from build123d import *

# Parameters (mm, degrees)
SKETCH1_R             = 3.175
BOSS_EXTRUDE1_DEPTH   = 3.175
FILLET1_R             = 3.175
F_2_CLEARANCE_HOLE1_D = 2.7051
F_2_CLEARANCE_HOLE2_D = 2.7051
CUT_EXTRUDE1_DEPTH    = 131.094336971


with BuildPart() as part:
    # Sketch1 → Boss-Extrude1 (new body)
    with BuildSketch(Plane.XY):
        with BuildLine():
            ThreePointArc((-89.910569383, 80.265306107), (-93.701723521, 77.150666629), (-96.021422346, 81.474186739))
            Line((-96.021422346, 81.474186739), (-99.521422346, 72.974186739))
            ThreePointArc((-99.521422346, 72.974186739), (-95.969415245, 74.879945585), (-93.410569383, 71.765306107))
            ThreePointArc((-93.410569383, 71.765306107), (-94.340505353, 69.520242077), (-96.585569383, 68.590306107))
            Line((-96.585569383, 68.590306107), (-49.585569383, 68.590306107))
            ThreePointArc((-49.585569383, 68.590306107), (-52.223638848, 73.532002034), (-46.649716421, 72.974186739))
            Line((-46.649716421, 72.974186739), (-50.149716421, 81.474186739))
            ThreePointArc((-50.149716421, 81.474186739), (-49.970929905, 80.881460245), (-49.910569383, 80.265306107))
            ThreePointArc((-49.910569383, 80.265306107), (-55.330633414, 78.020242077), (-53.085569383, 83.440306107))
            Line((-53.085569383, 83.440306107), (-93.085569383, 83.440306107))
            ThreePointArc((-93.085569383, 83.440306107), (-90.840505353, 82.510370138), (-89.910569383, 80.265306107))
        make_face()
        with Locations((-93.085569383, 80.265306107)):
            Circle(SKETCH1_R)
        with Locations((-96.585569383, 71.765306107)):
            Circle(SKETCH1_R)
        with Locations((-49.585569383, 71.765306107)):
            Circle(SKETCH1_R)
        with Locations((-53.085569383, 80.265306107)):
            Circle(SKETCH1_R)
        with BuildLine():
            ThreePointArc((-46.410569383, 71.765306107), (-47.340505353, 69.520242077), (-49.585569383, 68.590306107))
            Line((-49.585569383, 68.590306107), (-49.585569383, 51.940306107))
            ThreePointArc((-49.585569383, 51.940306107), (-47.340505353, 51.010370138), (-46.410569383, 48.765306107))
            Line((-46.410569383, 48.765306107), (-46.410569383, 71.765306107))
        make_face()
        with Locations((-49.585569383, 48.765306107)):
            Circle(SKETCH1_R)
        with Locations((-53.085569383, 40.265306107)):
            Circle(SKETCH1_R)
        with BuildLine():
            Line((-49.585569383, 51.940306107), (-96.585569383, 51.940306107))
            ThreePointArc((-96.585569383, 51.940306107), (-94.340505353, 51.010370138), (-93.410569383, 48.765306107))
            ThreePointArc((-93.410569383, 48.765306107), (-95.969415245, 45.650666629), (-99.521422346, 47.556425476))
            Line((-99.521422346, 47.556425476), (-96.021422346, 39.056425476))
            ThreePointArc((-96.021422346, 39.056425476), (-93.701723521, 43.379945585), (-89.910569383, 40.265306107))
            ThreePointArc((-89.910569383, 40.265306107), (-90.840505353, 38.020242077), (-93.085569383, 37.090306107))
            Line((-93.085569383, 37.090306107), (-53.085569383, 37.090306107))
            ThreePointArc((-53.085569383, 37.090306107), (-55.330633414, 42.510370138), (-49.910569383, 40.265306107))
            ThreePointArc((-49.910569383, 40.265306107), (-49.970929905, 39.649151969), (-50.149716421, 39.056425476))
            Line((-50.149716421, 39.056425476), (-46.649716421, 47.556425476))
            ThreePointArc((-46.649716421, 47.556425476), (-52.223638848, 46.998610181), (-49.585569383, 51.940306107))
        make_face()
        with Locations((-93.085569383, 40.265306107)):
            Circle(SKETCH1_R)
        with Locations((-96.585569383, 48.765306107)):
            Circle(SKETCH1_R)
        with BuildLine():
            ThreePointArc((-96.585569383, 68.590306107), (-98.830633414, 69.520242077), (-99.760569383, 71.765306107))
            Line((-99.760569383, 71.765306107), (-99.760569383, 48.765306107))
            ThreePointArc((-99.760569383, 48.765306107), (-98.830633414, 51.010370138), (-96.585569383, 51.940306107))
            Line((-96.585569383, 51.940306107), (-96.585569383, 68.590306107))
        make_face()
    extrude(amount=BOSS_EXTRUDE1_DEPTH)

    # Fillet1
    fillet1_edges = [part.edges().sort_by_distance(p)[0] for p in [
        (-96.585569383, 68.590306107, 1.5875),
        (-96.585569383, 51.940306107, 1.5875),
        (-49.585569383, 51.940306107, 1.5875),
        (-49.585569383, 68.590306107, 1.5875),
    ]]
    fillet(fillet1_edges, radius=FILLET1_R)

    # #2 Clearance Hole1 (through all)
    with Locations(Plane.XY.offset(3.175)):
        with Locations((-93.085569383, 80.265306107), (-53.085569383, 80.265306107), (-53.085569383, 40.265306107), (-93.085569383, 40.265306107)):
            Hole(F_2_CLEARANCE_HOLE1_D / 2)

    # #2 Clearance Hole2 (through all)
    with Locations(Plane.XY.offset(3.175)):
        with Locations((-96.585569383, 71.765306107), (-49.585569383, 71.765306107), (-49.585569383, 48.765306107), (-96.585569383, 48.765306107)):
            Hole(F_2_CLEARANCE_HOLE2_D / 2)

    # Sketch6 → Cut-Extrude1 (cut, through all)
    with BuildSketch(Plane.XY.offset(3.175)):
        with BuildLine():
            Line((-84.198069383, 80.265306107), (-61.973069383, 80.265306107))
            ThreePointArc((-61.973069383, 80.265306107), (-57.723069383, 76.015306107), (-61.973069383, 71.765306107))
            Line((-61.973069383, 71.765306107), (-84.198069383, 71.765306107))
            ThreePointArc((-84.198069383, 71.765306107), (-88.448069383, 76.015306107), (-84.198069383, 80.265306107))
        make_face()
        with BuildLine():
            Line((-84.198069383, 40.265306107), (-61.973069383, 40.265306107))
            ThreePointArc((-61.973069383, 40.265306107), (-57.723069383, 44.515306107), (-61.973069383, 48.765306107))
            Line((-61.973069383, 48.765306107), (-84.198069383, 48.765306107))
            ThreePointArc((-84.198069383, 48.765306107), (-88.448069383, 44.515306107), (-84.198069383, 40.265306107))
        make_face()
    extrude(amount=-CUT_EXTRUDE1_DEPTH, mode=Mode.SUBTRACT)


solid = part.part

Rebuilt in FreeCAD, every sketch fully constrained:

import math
import FreeCAD as App
import Part
import Sketcher

V = App.Vector
Q = App.Units.Quantity


def edges_at(feature, points):
    """Names of the edges that pass closest to the given points."""
    edges = feature.Shape.Edges
    near = lambda p: min(range(len(edges)), key=lambda i: edges[i].distToShape(Part.Vertex(*p))[0])
    return sorted({f"Edge{near(p) + 1}" for p in points})

doc = App.newDocument("Part")
body = doc.addObject("PartDesign::Body", "Body")

sketch1 = body.newObject("Sketcher::SketchObject", "Sketch")
sketch1.AttachmentSupport = (doc.getObject("XY_Plane"), [""])
sketch1.MapMode = "FlatFace"
sketch1.addGeometry(Part.LineSegment(V(-96, 81.5, 0), V(-99.5, 73, 0)), False)
sketch1.addGeometry(Part.ArcOfCircle(Part.Circle(V(-96.6, 71.8, 0), V(0, 0, 1), 3.2), math.radians(158), math.radians(180)), False)
sketch1.addGeometry(Part.LineSegment(V(-99.8, 71.8, 0), V(-99.8, 48.8, 0)), False)
sketch1.addGeometry(Part.ArcOfCircle(Part.Circle(V(-96.6, 48.8, 0), V(0, 0, 1), 3.2), math.radians(180), math.radians(202)), False)
sketch1.addGeometry(Part.LineSegment(V(-99.5, 47.6, 0), V(-96, 39.1, 0)), False)
sketch1.addGeometry(Part.ArcOfCircle(Part.Circle(V(-93.1, 40.3, 0), V(0, 0, 1), 3.2), math.radians(-158), math.radians(-90)), False)
sketch1.addGeometry(Part.LineSegment(V(-93.1, 37.1, 0), V(-53.1, 37.1, 0)), False)
sketch1.addGeometry(Part.ArcOfCircle(Part.Circle(V(-53.1, 40.3, 0), V(0, 0, 1), 3.2), math.radians(-90), math.radians(-22)), False)
sketch1.addGeometry(Part.LineSegment(V(-50.1, 39.1, 0), V(-46.6, 47.6, 0)), False)
sketch1.addGeometry(Part.ArcOfCircle(Part.Circle(V(-49.6, 48.8, 0), V(0, 0, 1), 3.2), math.radians(-22), math.radians(0)), False)
sketch1.addGeometry(Part.LineSegment(V(-46.4, 48.8, 0), V(-46.4, 71.8, 0)), False)
sketch1.addGeometry(Part.ArcOfCircle(Part.Circle(V(-49.6, 71.8, 0), V(0, 0, 1), 3.2), math.radians(0), math.radians(22)), False)
sketch1.addGeometry(Part.LineSegment(V(-46.6, 73, 0), V(-50.1, 81.5, 0)), False)
sketch1.addGeometry(Part.ArcOfCircle(Part.Circle(V(-53.1, 80.3, 0), V(0, 0, 1), 3.2), math.radians(22), math.radians(90)), False)
sketch1.addGeometry(Part.LineSegment(V(-53.1, 83.4, 0), V(-93.1, 83.4, 0)), False)
sketch1.addGeometry(Part.ArcOfCircle(Part.Circle(V(-93.1, 80.3, 0), V(0, 0, 1), 3.2), math.radians(90), math.radians(158)), False)
sketch1.addGeometry(Part.LineSegment(V(-96.6, 68.6, 0), V(-49.6, 68.6, 0)), False)
sketch1.addGeometry(Part.LineSegment(V(-49.6, 68.6, 0), V(-49.6, 51.9, 0)), False)
sketch1.addGeometry(Part.LineSegment(V(-49.6, 51.9, 0), V(-96.6, 51.9, 0)), False)
sketch1.addGeometry(Part.LineSegment(V(-96.6, 51.9, 0), V(-96.6, 68.6, 0)), False)
sketch1.addConstraint(Sketcher.Constraint("Tangent", 0, 2, 1, 1))
sketch1.addConstraint(Sketcher.Constraint("Tangent", 1, 2, 2, 1))
sketch1.addConstraint(Sketcher.Constraint("Tangent", 2, 2, 3, 1))
sketch1.addConstraint(Sketcher.Constraint("Tangent", 3, 2, 4, 1))
sketch1.addConstraint(Sketcher.Constraint("Tangent", 4, 2, 5, 1))
sketch1.addConstraint(Sketcher.Constraint("Tangent", 5, 2, 6, 1))
sketch1.addConstraint(Sketcher.Constraint("Tangent", 6, 2, 7, 1))
sketch1.addConstraint(Sketcher.Constraint("Tangent", 7, 2, 8, 1))
sketch1.addConstraint(Sketcher.Constraint("Tangent", 8, 2, 9, 1))
sketch1.addConstraint(Sketcher.Constraint("Tangent", 9, 2, 10, 1))
sketch1.addConstraint(Sketcher.Constraint("Tangent", 10, 2, 11, 1))
sketch1.addConstraint(Sketcher.Constraint("Tangent", 11, 2, 12, 1))
sketch1.addConstraint(Sketcher.Constraint("Tangent", 12, 2, 13, 1))
sketch1.addConstraint(Sketcher.Constraint("Tangent", 13, 2, 14, 1))
sketch1.addConstraint(Sketcher.Constraint("Tangent", 14, 2, 15, 1))
sketch1.addConstraint(Sketcher.Constraint("Tangent", 15, 2, 0, 1))
sketch1.addConstraint(Sketcher.Constraint("Coincident", 16, 2, 17, 1))
sketch1.addConstraint(Sketcher.Constraint("Coincident", 17, 2, 18, 1))
sketch1.addConstraint(Sketcher.Constraint("Coincident", 18, 2, 19, 1))
sketch1.addConstraint(Sketcher.Constraint("Coincident", 19, 2, 16, 1))
sketch1.addConstraint(Sketcher.Constraint("Vertical", 2))
sketch1.addConstraint(Sketcher.Constraint("Horizontal", 6))
sketch1.addConstraint(Sketcher.Constraint("Vertical", 10))
sketch1.addConstraint(Sketcher.Constraint("Horizontal", 14))
sketch1.addConstraint(Sketcher.Constraint("Horizontal", 16))
sketch1.addConstraint(Sketcher.Constraint("Vertical", 17))
sketch1.addConstraint(Sketcher.Constraint("Horizontal", 18))
sketch1.addConstraint(Sketcher.Constraint("Vertical", 19))
sketch1.addConstraint(Sketcher.Constraint("Equal", 1, 3))
sketch1.addConstraint(Sketcher.Constraint("Equal", 3, 5))
sketch1.addConstraint(Sketcher.Constraint("Equal", 5, 7))
sketch1.addConstraint(Sketcher.Constraint("Equal", 7, 9))
sketch1.addConstraint(Sketcher.Constraint("Equal", 9, 11))
sketch1.addConstraint(Sketcher.Constraint("Equal", 11, 13))
sketch1.addConstraint(Sketcher.Constraint("Equal", 13, 15))
sketch1.addConstraint(Sketcher.Constraint("Parallel", 0, 8))
sketch1.addConstraint(Sketcher.Constraint("Parallel", 4, 12))
sketch1.addConstraint(Sketcher.Constraint("Horizontal", 3, 3, 9, 3))
sketch1.addConstraint(Sketcher.Constraint("Horizontal", 1, 3, 11, 3))
sketch1.addConstraint(Sketcher.Constraint("Horizontal", 4, 2, 7, 2))
sketch1.addConstraint(Sketcher.Constraint("Vertical", 7, 3, 13, 3))
sketch1.addConstraint(Sketcher.Constraint("Vertical", 11, 3, 16, 2))
sketch1.addConstraint(Sketcher.Constraint("Vertical", 3, 3, 18, 2))
sketch1.addConstraint(Sketcher.Constraint("DistanceX", 6, 1, 6, 2, Q("40 mm")))
sketch1.addConstraint(Sketcher.Constraint("DistanceX", 16, 1, 16, 2, Q("47 mm")))
sketch1.addConstraint(Sketcher.Constraint("DistanceY", 2, 2, 2, 1, Q("23 mm")))
sketch1.addConstraint(Sketcher.Constraint("Radius", 1, Q("3.175 mm")))
sketch1.addConstraint(Sketcher.Constraint("DistanceY", 7, 3, 13, 3, Q("40 mm")))
sketch1.addConstraint(Sketcher.Constraint("DistanceY", 17, 2, 17, 1, Q("16.65 mm")))
sketch1.addConstraint(Sketcher.Constraint("DistanceY", 16, 2, 11, 3, Q("3.175 mm")))
sketch1.addConstraint(Sketcher.Constraint("DistanceX", 1, 3, -1, 1, Q("96.585569 mm")))
sketch1.addConstraint(Sketcher.Constraint("DistanceY", -1, 1, 1, 3, Q("71.765306 mm")))
pad1 = body.newObject("PartDesign::Pad", "Pad")
pad1.Profile = sketch1
pad1.Length = 3.175
doc.recompute()

fillet = body.newObject("PartDesign::Fillet", "Fillet")
fillet.Base = (pad1, edges_at(pad1, [
    (-96.586, 68.59, 1.587),
    (-96.586, 51.94, 1.587),
    (-49.586, 51.94, 1.587),
    (-49.586, 68.59, 1.587),
]))
fillet.Radius = 3.175

sketch2 = body.newObject("Sketcher::SketchObject", "Sketch001")
sketch2.AttachmentSupport = (doc.getObject("XY_Plane"), [""])
sketch2.MapMode = "FlatFace"
sketch2.AttachmentOffset = App.Placement(V(0, 0, 3.175), App.Rotation())
sketch2.addGeometry(Part.Circle(V(-93.1, 80.3, 0), V(0, 0, 1), 1.4), False)
sketch2.addGeometry(Part.Circle(V(-53.1, 80.3, 0), V(0, 0, 1), 1.4), False)
sketch2.addGeometry(Part.Circle(V(-53.1, 40.3, 0), V(0, 0, 1), 1.4), False)
sketch2.addGeometry(Part.Circle(V(-93.1, 40.3, 0), V(0, 0, 1), 1.4), False)
sketch2.addConstraint(Sketcher.Constraint("Equal", 0, 1))
sketch2.addConstraint(Sketcher.Constraint("Equal", 1, 2))
sketch2.addConstraint(Sketcher.Constraint("Equal", 2, 3))
sketch2.addConstraint(Sketcher.Constraint("Horizontal", 0, 3, 1, 3))
sketch2.addConstraint(Sketcher.Constraint("Horizontal", 2, 3, 3, 3))
sketch2.addConstraint(Sketcher.Constraint("Vertical", 1, 3, 2, 3))
sketch2.addConstraint(Sketcher.Constraint("Vertical", 0, 3, 3, 3))
sketch2.addConstraint(Sketcher.Constraint("DistanceX", 0, 3, 1, 3, Q("40 mm")))
sketch2.addConstraint(Sketcher.Constraint("DistanceY", 2, 3, 1, 3, Q("40 mm")))
sketch2.addConstraint(Sketcher.Constraint("Diameter", 0, Q("2.7051 mm")))
sketch2.addConstraint(Sketcher.Constraint("DistanceX", 0, 3, -1, 1, Q("93.085569 mm")))
sketch2.addConstraint(Sketcher.Constraint("DistanceY", -1, 1, 0, 3, Q("80.265306 mm")))
doc.recompute()
hole = body.newObject("PartDesign::Hole", "Hole")
hole.Profile = sketch2
hole.ThreadType = "None"
hole.Diameter = 2.7051
hole.DepthType = "ThroughAll"

sketch3 = body.newObject("Sketcher::SketchObject", "Sketch002")
sketch3.AttachmentSupport = (doc.getObject("XY_Plane"), [""])
sketch3.MapMode = "FlatFace"
sketch3.AttachmentOffset = App.Placement(V(0, 0, 3.175), App.Rotation())
sketch3.addGeometry(Part.Circle(V(-96.6, 71.8, 0), V(0, 0, 1), 1.4), False)
sketch3.addGeometry(Part.Circle(V(-49.6, 71.8, 0), V(0, 0, 1), 1.4), False)
sketch3.addGeometry(Part.Circle(V(-49.6, 48.8, 0), V(0, 0, 1), 1.4), False)
sketch3.addGeometry(Part.Circle(V(-96.6, 48.8, 0), V(0, 0, 1), 1.4), False)
sketch3.addConstraint(Sketcher.Constraint("Equal", 0, 1))
sketch3.addConstraint(Sketcher.Constraint("Equal", 1, 2))
sketch3.addConstraint(Sketcher.Constraint("Equal", 2, 3))
sketch3.addConstraint(Sketcher.Constraint("Horizontal", 0, 3, 1, 3))
sketch3.addConstraint(Sketcher.Constraint("Horizontal", 2, 3, 3, 3))
sketch3.addConstraint(Sketcher.Constraint("Vertical", 1, 3, 2, 3))
sketch3.addConstraint(Sketcher.Constraint("Vertical", 0, 3, 3, 3))
sketch3.addConstraint(Sketcher.Constraint("DistanceX", 0, 3, 1, 3, Q("47 mm")))
sketch3.addConstraint(Sketcher.Constraint("DistanceY", 2, 3, 1, 3, Q("23 mm")))
sketch3.addConstraint(Sketcher.Constraint("Diameter", 0, Q("2.7051 mm")))
sketch3.addConstraint(Sketcher.Constraint("DistanceX", 0, 3, -1, 1, Q("96.585569 mm")))
sketch3.addConstraint(Sketcher.Constraint("DistanceY", -1, 1, 0, 3, Q("71.765306 mm")))
doc.recompute()
hole2 = body.newObject("PartDesign::Hole", "Hole001")
hole2.Profile = sketch3
hole2.ThreadType = "None"
hole2.Diameter = 2.7051
hole2.DepthType = "ThroughAll"

sketch4 = body.newObject("Sketcher::SketchObject", "Sketch003")
sketch4.AttachmentSupport = (doc.getObject("XY_Plane"), [""])
sketch4.MapMode = "FlatFace"
sketch4.AttachmentOffset = App.Placement(V(0, 0, 3.175), App.Rotation())
sketch4.addGeometry(Part.LineSegment(V(-62, 80.3, 0), V(-84.2, 80.3, 0)), False)
sketch4.addGeometry(Part.ArcOfCircle(Part.Circle(V(-84.2, 76, 0), V(0, 0, 1), 4.2), math.radians(90), math.radians(270)), False)
sketch4.addGeometry(Part.LineSegment(V(-84.2, 71.8, 0), V(-62, 71.8, 0)), False)
sketch4.addGeometry(Part.ArcOfCircle(Part.Circle(V(-62, 76, 0), V(0, 0, 1), 4.2), math.radians(-90), math.radians(90)), False)
sketch4.addGeometry(Part.LineSegment(V(-84.2, 40.3, 0), V(-62, 40.3, 0)), False)
sketch4.addGeometry(Part.ArcOfCircle(Part.Circle(V(-62, 44.5, 0), V(0, 0, 1), 4.2), math.radians(-90), math.radians(90)), False)
sketch4.addGeometry(Part.LineSegment(V(-62, 48.8, 0), V(-84.2, 48.8, 0)), False)
sketch4.addGeometry(Part.ArcOfCircle(Part.Circle(V(-84.2, 44.5, 0), V(0, 0, 1), 4.2), math.radians(90), math.radians(270)), False)
sketch4.addConstraint(Sketcher.Constraint("Tangent", 0, 2, 1, 1))
sketch4.addConstraint(Sketcher.Constraint("Tangent", 1, 2, 2, 1))
sketch4.addConstraint(Sketcher.Constraint("Tangent", 2, 2, 3, 1))
sketch4.addConstraint(Sketcher.Constraint("Tangent", 3, 2, 0, 1))
sketch4.addConstraint(Sketcher.Constraint("Tangent", 4, 2, 5, 1))
sketch4.addConstraint(Sketcher.Constraint("Tangent", 5, 2, 6, 1))
sketch4.addConstraint(Sketcher.Constraint("Tangent", 6, 2, 7, 1))
sketch4.addConstraint(Sketcher.Constraint("Tangent", 7, 2, 4, 1))
sketch4.addConstraint(Sketcher.Constraint("Horizontal", 0))
sketch4.addConstraint(Sketcher.Constraint("Horizontal", 2))
sketch4.addConstraint(Sketcher.Constraint("Horizontal", 4))
sketch4.addConstraint(Sketcher.Constraint("Horizontal", 6))
sketch4.addConstraint(Sketcher.Constraint("Equal", 3, 5))
sketch4.addConstraint(Sketcher.Constraint("Vertical", 3, 3, 5, 3))
sketch4.addConstraint(Sketcher.Constraint("Vertical", 1, 3, 7, 3))
sketch4.addConstraint(Sketcher.Constraint("Radius", 1, Q("4.25 mm")))
sketch4.addConstraint(Sketcher.Constraint("DistanceY", 5, 2, 2, 2, Q("23 mm")))
sketch4.addConstraint(Sketcher.Constraint("DistanceX", 0, 2, 0, 1, Q("22.225 mm")))
sketch4.addConstraint(Sketcher.Constraint("DistanceX", 1, 3, -1, 1, Q("84.198069 mm")))
sketch4.addConstraint(Sketcher.Constraint("DistanceY", -1, 1, 1, 3, Q("76.015306 mm")))
pocket1 = body.newObject("PartDesign::Pocket", "Pocket")
pocket1.Profile = sketch4
pocket1.Type = "ThroughAll"

doc.recompute()
